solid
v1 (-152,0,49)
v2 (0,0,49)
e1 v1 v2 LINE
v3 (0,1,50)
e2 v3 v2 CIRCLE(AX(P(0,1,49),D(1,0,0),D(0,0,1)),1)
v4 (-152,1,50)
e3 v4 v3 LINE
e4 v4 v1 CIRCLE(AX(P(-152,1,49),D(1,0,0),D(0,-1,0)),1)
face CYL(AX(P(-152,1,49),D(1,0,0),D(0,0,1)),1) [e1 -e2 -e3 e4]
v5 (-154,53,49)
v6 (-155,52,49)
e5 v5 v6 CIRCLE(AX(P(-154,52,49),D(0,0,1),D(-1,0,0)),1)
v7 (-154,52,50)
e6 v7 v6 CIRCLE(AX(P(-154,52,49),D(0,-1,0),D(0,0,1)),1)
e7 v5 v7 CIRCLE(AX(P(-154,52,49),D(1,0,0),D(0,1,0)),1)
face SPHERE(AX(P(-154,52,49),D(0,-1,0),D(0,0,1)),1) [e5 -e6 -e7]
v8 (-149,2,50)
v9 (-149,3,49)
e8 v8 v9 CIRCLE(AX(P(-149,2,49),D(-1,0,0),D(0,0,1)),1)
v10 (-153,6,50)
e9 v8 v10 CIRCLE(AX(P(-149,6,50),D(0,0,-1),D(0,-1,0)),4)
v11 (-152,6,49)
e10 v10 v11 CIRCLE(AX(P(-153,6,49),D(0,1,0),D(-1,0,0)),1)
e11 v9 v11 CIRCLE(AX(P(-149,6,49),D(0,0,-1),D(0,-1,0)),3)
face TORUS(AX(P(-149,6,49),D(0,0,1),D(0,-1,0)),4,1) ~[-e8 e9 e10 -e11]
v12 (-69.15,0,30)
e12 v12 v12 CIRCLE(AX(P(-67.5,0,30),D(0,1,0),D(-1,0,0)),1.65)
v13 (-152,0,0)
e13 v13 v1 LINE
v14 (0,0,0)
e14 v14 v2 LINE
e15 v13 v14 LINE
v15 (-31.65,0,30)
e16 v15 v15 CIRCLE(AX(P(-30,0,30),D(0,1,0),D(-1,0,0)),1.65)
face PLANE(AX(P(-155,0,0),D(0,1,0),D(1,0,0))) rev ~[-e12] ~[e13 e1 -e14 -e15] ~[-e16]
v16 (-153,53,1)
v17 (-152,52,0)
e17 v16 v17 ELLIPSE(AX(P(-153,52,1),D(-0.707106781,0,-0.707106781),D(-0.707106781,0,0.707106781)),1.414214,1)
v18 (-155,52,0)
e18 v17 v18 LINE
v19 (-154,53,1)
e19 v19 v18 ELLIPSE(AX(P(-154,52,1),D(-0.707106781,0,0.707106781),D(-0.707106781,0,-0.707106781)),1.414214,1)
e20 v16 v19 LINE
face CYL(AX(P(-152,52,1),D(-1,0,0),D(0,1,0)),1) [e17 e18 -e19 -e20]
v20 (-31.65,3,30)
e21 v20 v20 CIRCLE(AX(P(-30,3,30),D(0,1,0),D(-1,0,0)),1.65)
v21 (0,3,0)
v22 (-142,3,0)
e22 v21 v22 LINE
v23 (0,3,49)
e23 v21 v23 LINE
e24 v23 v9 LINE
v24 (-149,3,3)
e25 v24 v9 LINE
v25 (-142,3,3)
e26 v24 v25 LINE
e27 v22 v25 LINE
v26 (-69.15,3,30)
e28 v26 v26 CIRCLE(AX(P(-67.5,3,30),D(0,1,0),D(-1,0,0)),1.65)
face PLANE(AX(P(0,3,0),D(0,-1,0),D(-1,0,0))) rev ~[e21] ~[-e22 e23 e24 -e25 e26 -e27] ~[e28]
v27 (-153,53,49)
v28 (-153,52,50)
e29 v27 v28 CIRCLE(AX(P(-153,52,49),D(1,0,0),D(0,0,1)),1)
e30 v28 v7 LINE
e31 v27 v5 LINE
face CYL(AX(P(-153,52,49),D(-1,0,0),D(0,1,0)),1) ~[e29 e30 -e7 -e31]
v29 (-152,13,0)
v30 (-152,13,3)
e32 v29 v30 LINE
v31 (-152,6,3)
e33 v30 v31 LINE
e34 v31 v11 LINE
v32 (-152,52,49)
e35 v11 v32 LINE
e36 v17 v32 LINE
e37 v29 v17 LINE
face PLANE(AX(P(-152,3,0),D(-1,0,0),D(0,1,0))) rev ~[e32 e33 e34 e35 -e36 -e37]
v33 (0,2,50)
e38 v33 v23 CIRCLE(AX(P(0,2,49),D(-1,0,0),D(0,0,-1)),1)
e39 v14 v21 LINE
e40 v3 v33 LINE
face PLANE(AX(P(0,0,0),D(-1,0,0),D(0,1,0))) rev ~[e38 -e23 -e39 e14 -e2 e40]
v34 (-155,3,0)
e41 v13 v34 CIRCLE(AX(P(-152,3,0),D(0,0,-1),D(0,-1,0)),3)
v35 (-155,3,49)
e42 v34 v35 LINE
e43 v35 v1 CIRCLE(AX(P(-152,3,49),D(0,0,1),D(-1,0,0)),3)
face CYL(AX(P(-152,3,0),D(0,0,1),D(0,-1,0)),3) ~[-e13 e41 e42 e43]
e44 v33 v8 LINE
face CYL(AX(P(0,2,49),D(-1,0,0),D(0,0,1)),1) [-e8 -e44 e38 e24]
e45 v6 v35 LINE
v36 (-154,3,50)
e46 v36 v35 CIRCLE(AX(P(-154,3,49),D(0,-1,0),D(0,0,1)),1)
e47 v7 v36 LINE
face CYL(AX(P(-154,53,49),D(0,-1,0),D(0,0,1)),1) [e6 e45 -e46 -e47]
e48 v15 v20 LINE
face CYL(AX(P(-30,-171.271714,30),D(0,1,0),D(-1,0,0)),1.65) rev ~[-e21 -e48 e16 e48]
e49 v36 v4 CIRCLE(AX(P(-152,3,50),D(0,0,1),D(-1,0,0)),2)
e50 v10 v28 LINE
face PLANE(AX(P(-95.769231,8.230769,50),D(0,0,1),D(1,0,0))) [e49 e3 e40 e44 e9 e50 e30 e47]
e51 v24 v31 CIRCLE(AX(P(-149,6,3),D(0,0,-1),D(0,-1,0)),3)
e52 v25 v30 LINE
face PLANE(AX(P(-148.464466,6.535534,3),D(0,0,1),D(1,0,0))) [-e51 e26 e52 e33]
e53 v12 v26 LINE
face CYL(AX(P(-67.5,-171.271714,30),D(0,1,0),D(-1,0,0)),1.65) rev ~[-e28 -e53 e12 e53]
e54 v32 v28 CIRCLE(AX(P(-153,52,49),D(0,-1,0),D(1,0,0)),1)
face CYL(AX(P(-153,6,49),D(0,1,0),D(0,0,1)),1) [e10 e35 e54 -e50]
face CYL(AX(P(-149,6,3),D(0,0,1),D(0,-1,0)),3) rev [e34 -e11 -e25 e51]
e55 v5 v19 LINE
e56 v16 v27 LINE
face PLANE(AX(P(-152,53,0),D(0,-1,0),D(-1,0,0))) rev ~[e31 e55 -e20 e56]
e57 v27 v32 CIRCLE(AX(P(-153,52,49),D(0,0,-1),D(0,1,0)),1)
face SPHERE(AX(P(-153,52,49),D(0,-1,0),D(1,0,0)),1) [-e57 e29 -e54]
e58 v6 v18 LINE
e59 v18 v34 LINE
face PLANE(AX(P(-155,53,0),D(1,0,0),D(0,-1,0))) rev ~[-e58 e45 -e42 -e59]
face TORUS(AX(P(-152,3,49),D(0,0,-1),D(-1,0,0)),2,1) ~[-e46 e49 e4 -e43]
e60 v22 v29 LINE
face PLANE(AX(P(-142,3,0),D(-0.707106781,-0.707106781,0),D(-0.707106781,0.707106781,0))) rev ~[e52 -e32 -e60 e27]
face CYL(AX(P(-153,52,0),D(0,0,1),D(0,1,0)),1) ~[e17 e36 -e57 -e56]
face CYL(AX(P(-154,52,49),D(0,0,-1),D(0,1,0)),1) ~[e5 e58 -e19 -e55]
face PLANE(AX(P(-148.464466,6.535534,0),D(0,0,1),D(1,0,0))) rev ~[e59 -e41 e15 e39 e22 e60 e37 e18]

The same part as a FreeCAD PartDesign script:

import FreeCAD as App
import Part
import Sketcher

V = App.Vector
Q = App.Units.Quantity


def edges_at(feature, points):
    """Names of the edges that pass closest to the given points."""
    edges = feature.Shape.Edges
    near = lambda p: min(range(len(edges)), key=lambda i: edges[i].distToShape(Part.Vertex(*p))[0])
    return sorted({f"Edge{near(p) + 1}" for p in points})

doc = App.newDocument("Part")
body = doc.addObject("PartDesign::Body", "Body")

sketch1 = body.newObject("Sketcher::SketchObject", "Sketch")
sketch1.AttachmentSupport = (doc.getObject("XY_Plane"), [""])
sketch1.MapMode = "FlatFace"
sketch1.addGeometry([
    Part.LineSegment(V(-155, 0, 0), V(0, 0, 0)),
    Part.LineSegment(V(0, 0, 0), V(0, 3, 0)),
    Part.LineSegment(V(0, 3, 0), V(-152, 3, 0)),
    Part.LineSegment(V(-152, 3, 0), V(-152, 53, 0)),
    Part.LineSegment(V(-152, 53, 0), V(-155, 53, 0)),
    Part.LineSegment(V(-155, 53, 0), V(-155, 0, 0)),
], False)
sketch1.addConstraint([
    Sketcher.Constraint("Coincident", 0, 2, 1, 1),
    Sketcher.Constraint("Coincident", 1, 2, 2, 1),
    Sketcher.Constraint("Coincident", 2, 2, 3, 1),
    Sketcher.Constraint("Coincident", 3, 2, 4, 1),
    Sketcher.Constraint("Coincident", 4, 2, 5, 1),
    Sketcher.Constraint("Coincident", 5, 2, 0, 1),
    Sketcher.Constraint("Horizontal", 0),
    Sketcher.Constraint("Vertical", 1),
    Sketcher.Constraint("Horizontal", 2),
    Sketcher.Constraint("Vertical", 3),
    Sketcher.Constraint("Horizontal", 4),
    Sketcher.Constraint("Vertical", 5),
    Sketcher.Constraint("Coincident", 0, 2, -1, 1),
    Sketcher.Constraint("Equal", 4, 1),
    Sketcher.Constraint("DistanceX", 0, 1, 0, 2, Q("155 mm")),
    Sketcher.Constraint("DistanceX", 2, 2, 2, 1, Q("152 mm")),
    Sketcher.Constraint("DistanceY", 3, 1, 3, 2, Q("50 mm")),
])
pad1 = body.newObject("PartDesign::Pad", "Pad")
pad1.Profile = sketch1
pad1.Length = 50

sketch2 = body.newObject("Sketcher::SketchObject", "Sketch001")
sketch2.AttachmentSupport = (doc.getObject("XY_Plane"), [""])
sketch2.MapMode = "FlatFace"
sketch2.addGeometry([
    Part.LineSegment(V(-152, 3, 0), V(-142, 3, 0)),
    Part.LineSegment(V(-142, 3, 0), V(-152, 13, 0)),
    Part.LineSegment(V(-152, 13, 0), V(-152, 3, 0)),
], False)
sketch2.addConstraint([
    Sketcher.Constraint("Coincident", 0, 2, 1, 1),
    Sketcher.Constraint("Coincident", 1, 2, 2, 1),
    Sketcher.Constraint("Coincident", 2, 2, 0, 1),
    Sketcher.Constraint("Horizontal", 0),
    Sketcher.Constraint("Vertical", 2),
    Sketcher.Constraint("Equal", 0, 2),
    Sketcher.Constraint("DistanceX", 0, 1, 0, 2, Q("10 mm")),
    Sketcher.Constraint("DistanceX", 0, 2, -1, 1, Q("142 mm")),
    Sketcher.Constraint("DistanceY", -1, 1, 0, 2, Q("3 mm")),
])
pad2 = body.newObject("PartDesign::Pad", "Pad001")
pad2.Profile = sketch2
pad2.Length = 3
doc.recompute()

fillet = body.newObject("PartDesign::Fillet", "Fillet")
fillet.Base = (pad2, edges_at(pad2, [(-152, 3, 26.5)]))
fillet.Radius = 3
doc.recompute()

fillet2 = body.newObject("PartDesign::Fillet", "Fillet001")
fillet2.Base = (fillet, edges_at(fillet, [(-155, 0, 25)]))
fillet2.Radius = 3

sketch3 = body.newObject("Sketcher::SketchObject", "Sketch002")
sketch3.AttachmentSupport = (doc.getObject("XZ_Plane"), [""])
sketch3.MapMode = "FlatFace"
sketch3.addGeometry([
    Part.Circle(V(-30, 30, 0), V(0, 0, 1), 1.6),
    Part.Circle(V(-67.5, 30, 0), V(0, 0, 1), 1.6),
], False)
sketch3.addConstraint([
    Sketcher.Constraint("Equal", 0, 1),
    Sketcher.Constraint("Horizontal", 0, 3, 1, 3),
    Sketcher.Constraint("Diameter", 0, Q("3.3 mm")),
    Sketcher.Constraint("DistanceX", 0, 3, -1, 1, Q("30 mm")),
    Sketcher.Constraint("DistanceY", -1, 1, 0, 3, Q("30 mm")),
    Sketcher.Constraint("DistanceX", 1, 3, -1, 1, Q("67.5 mm")),
])
doc.recompute()
hole = body.newObject("PartDesign::Hole", "Hole")
hole.Profile = sketch3
hole.ThreadType = "None"
hole.Diameter = 3.3
hole.DepthType = "ThroughAll"
doc.recompute()

fillet3 = body.newObject("PartDesign::Fillet", "Fillet002")
fillet3.Base = (hole, edges_at(hole, [
    (-76, 0, 50),
    (-74.5, 3, 50),
    (-155, 28, 50),
    (-152, 29.5, 50),
    (-151.121, 3.879, 50),
    (-154.121, 0.879, 50),
]))
fillet3.Radius = 1
doc.recompute()

fillet4 = body.newObject("PartDesign::Fillet", "Fillet003")
fillet4.Base = (fillet3, edges_at(fillet3, [
    (-152, 53, 24.5),
    (-155, 53, 24.5),
    (-152.293, 53, 49.707),
    (-153.5, 53, 0),
    (-153.5, 53, 50),
    (-154.707, 53, 49.707),
]))
fillet4.Radius = 1

doc.recompute()
